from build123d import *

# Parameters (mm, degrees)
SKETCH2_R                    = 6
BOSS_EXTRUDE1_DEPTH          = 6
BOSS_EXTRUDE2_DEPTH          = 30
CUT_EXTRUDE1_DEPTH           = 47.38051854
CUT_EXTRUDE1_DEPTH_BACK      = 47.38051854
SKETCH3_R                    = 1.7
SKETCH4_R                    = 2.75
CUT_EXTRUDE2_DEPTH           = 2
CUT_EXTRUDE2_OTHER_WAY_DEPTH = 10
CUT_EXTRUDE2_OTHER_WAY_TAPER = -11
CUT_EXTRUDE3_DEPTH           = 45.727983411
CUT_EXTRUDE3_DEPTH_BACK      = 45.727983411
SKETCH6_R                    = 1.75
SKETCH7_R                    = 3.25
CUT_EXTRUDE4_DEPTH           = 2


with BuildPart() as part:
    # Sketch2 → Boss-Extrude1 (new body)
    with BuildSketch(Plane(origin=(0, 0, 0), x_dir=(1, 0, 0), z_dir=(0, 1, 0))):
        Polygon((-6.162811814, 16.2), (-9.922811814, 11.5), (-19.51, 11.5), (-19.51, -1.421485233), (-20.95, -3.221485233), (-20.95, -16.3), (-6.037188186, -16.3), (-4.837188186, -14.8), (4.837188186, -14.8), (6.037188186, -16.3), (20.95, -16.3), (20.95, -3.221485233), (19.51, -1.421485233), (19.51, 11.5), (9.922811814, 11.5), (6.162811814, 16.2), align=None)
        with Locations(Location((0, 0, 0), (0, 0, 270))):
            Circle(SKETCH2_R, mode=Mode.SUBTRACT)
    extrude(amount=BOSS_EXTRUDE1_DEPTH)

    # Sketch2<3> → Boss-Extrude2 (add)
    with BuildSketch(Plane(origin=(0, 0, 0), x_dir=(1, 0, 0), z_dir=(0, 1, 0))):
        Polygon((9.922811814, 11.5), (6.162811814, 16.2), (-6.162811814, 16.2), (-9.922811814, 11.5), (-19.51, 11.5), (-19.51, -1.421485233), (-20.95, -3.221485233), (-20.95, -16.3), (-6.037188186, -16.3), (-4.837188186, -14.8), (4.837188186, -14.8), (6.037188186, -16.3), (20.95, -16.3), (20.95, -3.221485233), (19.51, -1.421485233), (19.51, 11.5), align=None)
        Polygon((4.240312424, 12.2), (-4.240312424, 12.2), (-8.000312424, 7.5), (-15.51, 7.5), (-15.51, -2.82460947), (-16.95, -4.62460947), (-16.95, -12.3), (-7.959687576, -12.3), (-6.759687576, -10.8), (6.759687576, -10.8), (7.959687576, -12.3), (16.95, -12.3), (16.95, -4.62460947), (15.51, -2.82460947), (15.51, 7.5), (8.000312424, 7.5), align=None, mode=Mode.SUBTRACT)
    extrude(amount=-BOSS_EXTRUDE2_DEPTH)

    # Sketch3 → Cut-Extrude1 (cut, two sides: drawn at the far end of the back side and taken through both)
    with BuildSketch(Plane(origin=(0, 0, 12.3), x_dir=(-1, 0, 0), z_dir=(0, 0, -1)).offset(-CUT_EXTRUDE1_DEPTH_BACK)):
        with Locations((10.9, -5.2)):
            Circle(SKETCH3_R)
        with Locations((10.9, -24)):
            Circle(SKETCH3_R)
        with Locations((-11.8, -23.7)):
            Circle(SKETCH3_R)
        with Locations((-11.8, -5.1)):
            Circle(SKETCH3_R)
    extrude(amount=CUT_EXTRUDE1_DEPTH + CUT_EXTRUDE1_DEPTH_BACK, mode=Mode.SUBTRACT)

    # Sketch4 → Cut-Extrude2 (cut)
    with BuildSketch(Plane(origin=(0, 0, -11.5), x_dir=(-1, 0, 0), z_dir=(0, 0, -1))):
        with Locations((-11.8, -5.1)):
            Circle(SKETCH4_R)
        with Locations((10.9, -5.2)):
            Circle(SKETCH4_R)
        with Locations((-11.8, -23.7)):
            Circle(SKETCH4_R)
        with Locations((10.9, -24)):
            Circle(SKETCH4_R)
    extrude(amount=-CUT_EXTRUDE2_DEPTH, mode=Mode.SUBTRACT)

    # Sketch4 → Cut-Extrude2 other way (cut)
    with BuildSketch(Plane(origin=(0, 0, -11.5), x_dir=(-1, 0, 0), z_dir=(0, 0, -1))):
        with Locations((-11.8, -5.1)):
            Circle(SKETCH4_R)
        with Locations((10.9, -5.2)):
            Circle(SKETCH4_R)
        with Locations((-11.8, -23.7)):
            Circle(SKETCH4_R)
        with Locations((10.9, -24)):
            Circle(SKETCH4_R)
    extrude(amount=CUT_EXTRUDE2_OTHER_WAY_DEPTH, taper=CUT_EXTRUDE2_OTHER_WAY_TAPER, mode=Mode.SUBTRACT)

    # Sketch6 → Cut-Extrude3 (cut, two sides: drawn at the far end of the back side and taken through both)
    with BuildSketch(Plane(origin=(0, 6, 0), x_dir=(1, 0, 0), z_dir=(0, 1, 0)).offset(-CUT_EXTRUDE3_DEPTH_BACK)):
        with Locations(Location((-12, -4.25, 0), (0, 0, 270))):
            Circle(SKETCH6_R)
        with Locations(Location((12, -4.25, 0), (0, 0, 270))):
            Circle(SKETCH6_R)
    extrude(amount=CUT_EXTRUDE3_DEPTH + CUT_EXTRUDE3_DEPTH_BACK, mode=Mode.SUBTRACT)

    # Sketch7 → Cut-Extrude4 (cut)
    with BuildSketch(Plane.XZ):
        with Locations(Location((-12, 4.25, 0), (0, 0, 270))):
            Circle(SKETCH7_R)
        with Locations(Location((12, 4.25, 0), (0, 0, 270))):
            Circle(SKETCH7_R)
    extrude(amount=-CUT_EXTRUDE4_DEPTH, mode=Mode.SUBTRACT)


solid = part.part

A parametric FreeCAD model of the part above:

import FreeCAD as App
import Part
import Sketcher
from FreeCAD import Vector
Q = App.Units.Quantity


def add_polygon(sketch, points):
    """Adds a closed chain of lines whose ends are joined by coincident constraints."""
    first, n = sketch.GeometryCount, len(points)
    for a, b in zip(points, points[1:] + points[:1]):
        sketch.addGeometry(Part.LineSegment(App.Vector(*a, 0), App.Vector(*b, 0)), False)
    for i in range(n):
        sketch.addConstraint(Sketcher.Constraint("Coincident", first + i, 2, first + (i + 1) % n, 1))

doc = App.newDocument("Part")
params = doc.addObject("Spreadsheet::Sheet", "Params")
for row, (alias, value) in enumerate([
    ("sketch1_diameter", "12 mm"),
    ("pad1_length", "6 mm"),
    ("pad2_length", "30 mm"),
    ("sketch3_diameter", "3.4 mm"),
    ("sketch4_diameter", "5.5 mm"),
    ("pocket2_length", "2 mm"),
    ("sketch5_diameter", "5.5 mm"),
    ("pocket3_length", "10 mm"),
    ("pocket3_taper", "11 deg"),
    ("sketch6_diameter", "3.5 mm"),
    ("sketch7_diameter", "6.5 mm"),
    ("pocket5_length", "2 mm"),
], start=1):
    params.set(f"A{row}", alias)
    params.set(f"B{row}", "=" + value)
    params.setAlias(f"B{row}", alias)

body = doc.addObject("PartDesign::Body", "Body")

sketch1 = body.newObject("Sketcher::SketchObject", "Sketch")
sketch1.AttachmentSupport = (doc.getObject("XZ_Plane"), [""])
sketch1.MapMode = "FlatFace"
add_polygon(sketch1, [(-6.2, -16.2), (-9.9, -11.5), (-19.5, -11.5), (-19.5, 1.4), (-20.9, 3.2), (-20.9, 16.3), (-6, 16.3), (-4.8, 14.8), (4.8, 14.8), (6, 16.3), (20.9, 16.3), (20.9, 3.2), (19.5, 1.4), (19.5, -11.5), (9.9, -11.5), (6.2, -16.2)])
sketch1.addGeometry(Part.Circle(Vector(0, 0, 0), Vector(0, 0, 1), 6), False)
sketch1.addConstraint([
    Sketcher.Constraint("Horizontal", 1),
    Sketcher.Constraint("Vertical", 2),
    Sketcher.Constraint("Vertical", 4),
    Sketcher.Constraint("Horizontal", 5),
    Sketcher.Constraint("Horizontal", 7),
    Sketcher.Constraint("Horizontal", 9),
    Sketcher.Constraint("Vertical", 10),
    Sketcher.Constraint("Vertical", 12),
    Sketcher.Constraint("Horizontal", 13),
    Sketcher.Constraint("Horizontal", 15),
    Sketcher.Constraint("Coincident", 16, 3, -1, 1),
    Sketcher.Constraint("Symmetric", 5, 2, 8, 2, -2),
    Sketcher.Constraint("Symmetric", 3, 2, 10, 2, -2),
    Sketcher.Constraint("Symmetric", 2, 2, 11, 2, -2),
    Sketcher.Constraint("Symmetric", 0, 2, 13, 2, -2),
    Sketcher.Constraint("Parallel", 0, 3),
    Sketcher.Constraint("Parallel", 3, 6),
    Sketcher.Constraint("Parallel", 8, 11),
    Sketcher.Constraint("Parallel", 11, 14),
    Sketcher.Constraint("Diameter", 16, Q("12 mm")),
    Sketcher.Constraint("DistanceY", 0, 2, -1, 1, Q("11.5 mm")),
    Sketcher.Constraint("DistanceY", -1, 1, 4, 2, Q("16.3 mm")),
    Sketcher.Constraint("DistanceY", -1, 1, 6, 2, Q("14.8 mm")),
    Sketcher.Constraint("DistanceY", 14, 2, -1, 1, Q("16.2 mm")),
    Sketcher.Constraint("DistanceY", 2, 2, 3, 2, Q("1.8 mm")),
    Sketcher.Constraint("DistanceX", 5, 2, 6, 2, Q("1.2 mm")),
    Sketcher.Constraint("DistanceX", 1, 2, -1, 1, Q("19.51 mm")),
    Sketcher.Constraint("DistanceX", 1, 2, 1, 1, Q("9.587188 mm")),
    Sketcher.Constraint("DistanceX", 5, 1, 5, 2, Q("14.912812 mm")),
    Sketcher.Constraint("DistanceY", 2, 1, 2, 2, Q("12.921485 mm")),
])
sketch1.setExpression("Constraints[35]", "Params.sketch1_diameter")
pad1 = body.newObject("PartDesign::Pad", "Pad")
pad1.Profile = sketch1
pad1.setExpression("Length", "Params.pad1_length")
pad1.Reversed = True

sketch2 = body.newObject("Sketcher::SketchObject", "Sketch001")
sketch2.AttachmentSupport = (doc.getObject("XZ_Plane"), [""])
sketch2.MapMode = "FlatFace"
add_polygon(sketch2, [(9.9, -11.5), (6.2, -16.2), (-6.2, -16.2), (-9.9, -11.5), (-19.5, -11.5), (-19.5, 1.4), (-20.9, 3.2), (-20.9, 16.3), (-6, 16.3), (-4.8, 14.8), (4.8, 14.8), (6, 16.3), (20.9, 16.3), (20.9, 3.2), (19.5, 1.4), (19.5, -11.5)])
add_polygon(sketch2, [(-4.2, -12.2), (4.2, -12.2), (8, -7.5), (15.5, -7.5), (15.5, 2.8), (16.9, 4.6), (16.9, 12.3), (8, 12.3), (6.8, 10.8), (-6.8, 10.8), (-8, 12.3), (-16.9, 12.3), (-16.9, 4.6), (-15.5, 2.8), (-15.5, -7.5), (-8, -7.5)])
sketch2.addConstraint([
    Sketcher.Constraint("Horizontal", 1),
    Sketcher.Constraint("Horizontal", 3),
    Sketcher.Constraint("Vertical", 4),
    Sketcher.Constraint("Vertical", 6),
    Sketcher.Constraint("Horizontal", 7),
    Sketcher.Constraint("Horizontal", 9),
    Sketcher.Constraint("Horizontal", 11),
    Sketcher.Constraint("Vertical", 12),
    Sketcher.Constraint("Vertical", 14),
    Sketcher.Constraint("Horizontal", 15),
    Sketcher.Constraint("Horizontal", 16),
    Sketcher.Constraint("Horizontal", 18),
    Sketcher.Constraint("Vertical", 19),
    Sketcher.Constraint("Vertical", 21),
    Sketcher.Constraint("Horizontal", 22),
    Sketcher.Constraint("Horizontal", 24),
    Sketcher.Constraint("Horizontal", 26),
    Sketcher.Constraint("Vertical", 27),
    Sketcher.Constraint("Vertical", 29),
    Sketcher.Constraint("Horizontal", 30),
    Sketcher.Constraint("Symmetric", 7, 2, 10, 2, -2),
    Sketcher.Constraint("Symmetric", 5, 2, 12, 2, -2),
    Sketcher.Constraint("Symmetric", 4, 2, 13, 2, -2),
    Sketcher.Constraint("Symmetric", 2, 2, 15, 2, -2),
    Sketcher.Constraint("Symmetric", 22, 2, 25, 2, -2),
    Sketcher.Constraint("Symmetric", 20, 2, 27, 2, -2),
    Sketcher.Constraint("Symmetric", 19, 2, 28, 2, -2),
    Sketcher.Constraint("Symmetric", 17, 2, 30, 2, -2),
    Sketcher.Constraint("Parallel", 2, 5),
    Sketcher.Constraint("Parallel", 5, 8),
    Sketcher.Constraint("Parallel", 0, 10),
    Sketcher.Constraint("Parallel", 10, 13),
    Sketcher.Constraint("Parallel", 13, 17),
    Sketcher.Constraint("Parallel", 17, 20),
    Sketcher.Constraint("Parallel", 20, 23),
    Sketcher.Constraint("Parallel", 8, 25),
    Sketcher.Constraint("Parallel", 28, 31),
    Sketcher.Constraint("Equal", 2, 17),
    Sketcher.Constraint("Equal", 13, 20),
    Sketcher.Constraint("Equal", 10, 23),
    Sketcher.Constraint("DistanceY", 0, 2, 16, 2, Q("4 mm")),
    Sketcher.Constraint("DistanceX", 18, 2, 14, 2, Q("4 mm")),
    Sketcher.Constraint("DistanceY", 21, 2, 11, 2, Q("4 mm")),
    Sketcher.Constraint("DistanceY", 0, 2, -1, 1, Q("16.2 mm")),
    Sketcher.Constraint("DistanceY", 2, 2, -1, 1, Q("11.5 mm")),
    Sketcher.Constraint("DistanceY", -1, 1, 6, 2, Q("16.3 mm")),
    Sketcher.Constraint("DistanceY", -1, 1, 8, 2, Q("14.8 mm")),
    Sketcher.Constraint("DistanceY", 4, 2, 5, 2, Q("1.8 mm")),
    Sketcher.Constraint("DistanceX", 7, 2, 8, 2, Q("1.2 mm")),
    Sketcher.Constraint("DistanceX", 3, 2, -1, 1, Q("19.51 mm")),
    Sketcher.Constraint("DistanceX", 3, 2, 3, 1, Q("9.587188 mm")),
    Sketcher.Constraint("DistanceX", 7, 1, 7, 2, Q("14.912812 mm")),
    Sketcher.Constraint("DistanceY", 19, 1, 19, 2, Q("10.324609 mm")),
    Sketcher.Constraint("DistanceX", 16, 2, 0, 2, Q("1.922499 mm")),
    Sketcher.Constraint("DistanceX", 9, 2, 22, 2, Q("3.122499 mm")),
    Sketcher.Constraint("DistanceY", 4, 1, 4, 2, Q("12.921485 mm")),
])
pad2 = body.newObject("PartDesign::Pad", "Pad001")
pad2.Profile = sketch2
pad2.setExpression("Length", "Params.pad2_length")

sketch3 = body.newObject("Sketcher::SketchObject", "Sketch002")
sketch3.AttachmentSupport = (doc.getObject("XY_Plane"), [""])
sketch3.MapMode = "FlatFace"
sketch3.AttachmentOffset = App.Placement(Vector(0, 0, 12.3), App.Rotation())
sketch3.addGeometry([
    Part.Circle(Vector(-10.9, -5.2, 0), Vector(0, 0, 1), 1.7),
    Part.Circle(Vector(-10.9, -24, 0), Vector(0, 0, 1), 1.7),
    Part.Circle(Vector(11.8, -23.7, 0), Vector(0, 0, 1), 1.7),
    Part.Circle(Vector(11.8, -5.1, 0), Vector(0, 0, 1), 1.7),
], False)
sketch3.addConstraint([
    Sketcher.Constraint("Equal", 0, 1),
    Sketcher.Constraint("Equal", 1, 2),
    Sketcher.Constraint("Equal", 2, 3),
    Sketcher.Constraint("Vertical", 0, 3, 1, 3),
    Sketcher.Constraint("Vertical", 2, 3, 3, 3),
    Sketcher.Constraint("Diameter", 0, Q("3.4 mm")),
    Sketcher.Constraint("DistanceY", 1, 3, -1, 1, Q("24 mm")),
    Sketcher.Constraint("DistanceX", 0, 3, -1, 1, Q("10.9 mm")),
    Sketcher.Constraint("DistanceY", 0, 3, -1, 1, Q("5.2 mm")),
    Sketcher.Constraint("DistanceX", -1, 1, 2, 3, Q("11.8 mm")),
    Sketcher.Constraint("DistanceY", 2, 3, -1, 1, Q("23.7 mm")),
    Sketcher.Constraint("DistanceY", 3, 3, -1, 1, Q("5.1 mm")),
])
sketch3.setExpression("Constraints[5]", "Params.sketch3_diameter")
pocket1 = body.newObject("PartDesign::Pocket", "Pocket")
pocket1.Profile = sketch3
pocket1.Type = "ThroughAll"
pocket1.Midplane = True

sketch4 = body.newObject("Sketcher::SketchObject", "Sketch003")
sketch4.AttachmentSupport = (doc.getObject("XY_Plane"), [""])
sketch4.MapMode = "FlatFace"
sketch4.AttachmentOffset = App.Placement(Vector(0, 0, -11.5), App.Rotation())
sketch4.addGeometry([
    Part.Circle(Vector(11.8, -5.1, 0), Vector(0, 0, 1), 2.8),
    Part.Circle(Vector(-10.9, -5.2, 0), Vector(0, 0, 1), 2.8),
    Part.Circle(Vector(11.8, -23.7, 0), Vector(0, 0, 1), 2.8),
    Part.Circle(Vector(-10.9, -24, 0), Vector(0, 0, 1), 2.8),
], False)
sketch4.addConstraint([
    Sketcher.Constraint("Equal", 0, 1),
    Sketcher.Constraint("Equal", 1, 2),
    Sketcher.Constraint("Equal", 2, 3),
    Sketcher.Constraint("Vertical", 0, 3, 2, 3),
    Sketcher.Constraint("Vertical", 1, 3, 3, 3),
    Sketcher.Constraint("Diameter", 0, Q("5.5 mm")),
    Sketcher.Constraint("DistanceY", 3, 3, -1, 1, Q("24 mm")),
    Sketcher.Constraint("DistanceX", -1, 1, 0, 3, Q("11.8 mm")),
    Sketcher.Constraint("DistanceY", 0, 3, -1, 1, Q("5.1 mm")),
    Sketcher.Constraint("DistanceX", 1, 3, -1, 1, Q("10.9 mm")),
    Sketcher.Constraint("DistanceY", 1, 3, -1, 1, Q("5.2 mm")),
    Sketcher.Constraint("DistanceY", 2, 3, -1, 1, Q("23.7 mm")),
])
sketch4.setExpression("Constraints[5]", "Params.sketch4_diameter")
pocket2 = body.newObject("PartDesign::Pocket", "Pocket001")
pocket2.Profile = sketch4
pocket2.setExpression("Length", "Params.pocket2_length")
pocket2.Reversed = True

sketch5 = body.newObject("Sketcher::SketchObject", "Sketch004")
sketch5.AttachmentSupport = (doc.getObject("XY_Plane"), [""])
sketch5.MapMode = "FlatFace"
sketch5.AttachmentOffset = App.Placement(Vector(0, 0, -11.5), App.Rotation())
sketch5.addGeometry([
    Part.Circle(Vector(11.8, -5.1, 0), Vector(0, 0, 1), 2.8),
    Part.Circle(Vector(-10.9, -5.2, 0), Vector(0, 0, 1), 2.8),
    Part.Circle(Vector(11.8, -23.7, 0), Vector(0, 0, 1), 2.8),
    Part.Circle(Vector(-10.9, -24, 0), Vector(0, 0, 1), 2.8),
], False)
sketch5.addConstraint([
    Sketcher.Constraint("Equal", 0, 1),
    Sketcher.Constraint("Equal", 1, 2),
    Sketcher.Constraint("Equal", 2, 3),
    Sketcher.Constraint("Vertical", 0, 3, 2, 3),
    Sketcher.Constraint("Vertical", 1, 3, 3, 3),
    Sketcher.Constraint("Diameter", 0, Q("5.5 mm")),
    Sketcher.Constraint("DistanceY", 3, 3, -1, 1, Q("24 mm")),
    Sketcher.Constraint("DistanceX", -1, 1, 0, 3, Q("11.8 mm")),
    Sketcher.Constraint("DistanceY", 0, 3, -1, 1, Q("5.1 mm")),
    Sketcher.Constraint("DistanceX", 1, 3, -1, 1, Q("10.9 mm")),
    Sketcher.Constraint("DistanceY", 1, 3, -1, 1, Q("5.2 mm")),
    Sketcher.Constraint("DistanceY", 2, 3, -1, 1, Q("23.7 mm")),
])
sketch5.setExpression("Constraints[5]", "Params.sketch5_diameter")
pocket3 = body.newObject("PartDesign::Pocket", "Pocket002")
pocket3.Profile = sketch5
pocket3.setExpression("Length", "Params.pocket3_length")
pocket3.setExpression("TaperAngle", "Params.pocket3_taper")

sketch6 = body.newObject("Sketcher::SketchObject", "Sketch005")
sketch6.AttachmentSupport = (doc.getObject("XZ_Plane"), [""])
sketch6.MapMode = "FlatFace"
sketch6.AttachmentOffset = App.Placement(Vector(0, 0, -6), App.Rotation())
sketch6.addGeometry([
    Part.Circle(Vector(-12, 4.2, 0), Vector(0, 0, 1), 1.8),
    Part.Circle(Vector(12, 4.2, 0), Vector(0, 0, 1), 1.8),
], False)
sketch6.addConstraint([
    Sketcher.Constraint("Equal", 0, 1),
    Sketcher.Constraint("Symmetric", 0, 3, 1, 3, -2),
    Sketcher.Constraint("Diameter", 0, Q("3.5 mm")),
    Sketcher.Constraint("DistanceX", 0, 3, -1, 1, Q("12 mm")),
    Sketcher.Constraint("DistanceY", -1, 1, 0, 3, Q("4.25 mm")),
])
sketch6.setExpression("Constraints[2]", "Params.sketch6_diameter")
pocket4 = body.newObject("PartDesign::Pocket", "Pocket003")
pocket4.Profile = sketch6
pocket4.Type = "ThroughAll"
pocket4.Midplane = True

sketch7 = body.newObject("Sketcher::SketchObject", "Sketch006")
sketch7.AttachmentSupport = (doc.getObject("XZ_Plane"), [""])
sketch7.MapMode = "FlatFace"
sketch7.addGeometry([
    Part.Circle(Vector(-12, 4.2, 0), Vector(0, 0, 1), 3.2),
    Part.Circle(Vector(12, 4.2, 0), Vector(0, 0, 1), 3.2),
], False)
sketch7.addConstraint([
    Sketcher.Constraint("Equal", 0, 1),
    Sketcher.Constraint("Symmetric", 0, 3, 1, 3, -2),
    Sketcher.Constraint("Diameter", 0, Q("6.5 mm")),
    Sketcher.Constraint("DistanceX", 0, 3, -1, 1, Q("12 mm")),
    Sketcher.Constraint("DistanceY", -1, 1, 0, 3, Q("4.25 mm")),
])
sketch7.setExpression("Constraints[2]", "Params.sketch7_diameter")
pocket5 = body.newObject("PartDesign::Pocket", "Pocket004")
pocket5.Profile = sketch7
pocket5.setExpression("Length", "Params.pocket5_length")

doc.recompute()
